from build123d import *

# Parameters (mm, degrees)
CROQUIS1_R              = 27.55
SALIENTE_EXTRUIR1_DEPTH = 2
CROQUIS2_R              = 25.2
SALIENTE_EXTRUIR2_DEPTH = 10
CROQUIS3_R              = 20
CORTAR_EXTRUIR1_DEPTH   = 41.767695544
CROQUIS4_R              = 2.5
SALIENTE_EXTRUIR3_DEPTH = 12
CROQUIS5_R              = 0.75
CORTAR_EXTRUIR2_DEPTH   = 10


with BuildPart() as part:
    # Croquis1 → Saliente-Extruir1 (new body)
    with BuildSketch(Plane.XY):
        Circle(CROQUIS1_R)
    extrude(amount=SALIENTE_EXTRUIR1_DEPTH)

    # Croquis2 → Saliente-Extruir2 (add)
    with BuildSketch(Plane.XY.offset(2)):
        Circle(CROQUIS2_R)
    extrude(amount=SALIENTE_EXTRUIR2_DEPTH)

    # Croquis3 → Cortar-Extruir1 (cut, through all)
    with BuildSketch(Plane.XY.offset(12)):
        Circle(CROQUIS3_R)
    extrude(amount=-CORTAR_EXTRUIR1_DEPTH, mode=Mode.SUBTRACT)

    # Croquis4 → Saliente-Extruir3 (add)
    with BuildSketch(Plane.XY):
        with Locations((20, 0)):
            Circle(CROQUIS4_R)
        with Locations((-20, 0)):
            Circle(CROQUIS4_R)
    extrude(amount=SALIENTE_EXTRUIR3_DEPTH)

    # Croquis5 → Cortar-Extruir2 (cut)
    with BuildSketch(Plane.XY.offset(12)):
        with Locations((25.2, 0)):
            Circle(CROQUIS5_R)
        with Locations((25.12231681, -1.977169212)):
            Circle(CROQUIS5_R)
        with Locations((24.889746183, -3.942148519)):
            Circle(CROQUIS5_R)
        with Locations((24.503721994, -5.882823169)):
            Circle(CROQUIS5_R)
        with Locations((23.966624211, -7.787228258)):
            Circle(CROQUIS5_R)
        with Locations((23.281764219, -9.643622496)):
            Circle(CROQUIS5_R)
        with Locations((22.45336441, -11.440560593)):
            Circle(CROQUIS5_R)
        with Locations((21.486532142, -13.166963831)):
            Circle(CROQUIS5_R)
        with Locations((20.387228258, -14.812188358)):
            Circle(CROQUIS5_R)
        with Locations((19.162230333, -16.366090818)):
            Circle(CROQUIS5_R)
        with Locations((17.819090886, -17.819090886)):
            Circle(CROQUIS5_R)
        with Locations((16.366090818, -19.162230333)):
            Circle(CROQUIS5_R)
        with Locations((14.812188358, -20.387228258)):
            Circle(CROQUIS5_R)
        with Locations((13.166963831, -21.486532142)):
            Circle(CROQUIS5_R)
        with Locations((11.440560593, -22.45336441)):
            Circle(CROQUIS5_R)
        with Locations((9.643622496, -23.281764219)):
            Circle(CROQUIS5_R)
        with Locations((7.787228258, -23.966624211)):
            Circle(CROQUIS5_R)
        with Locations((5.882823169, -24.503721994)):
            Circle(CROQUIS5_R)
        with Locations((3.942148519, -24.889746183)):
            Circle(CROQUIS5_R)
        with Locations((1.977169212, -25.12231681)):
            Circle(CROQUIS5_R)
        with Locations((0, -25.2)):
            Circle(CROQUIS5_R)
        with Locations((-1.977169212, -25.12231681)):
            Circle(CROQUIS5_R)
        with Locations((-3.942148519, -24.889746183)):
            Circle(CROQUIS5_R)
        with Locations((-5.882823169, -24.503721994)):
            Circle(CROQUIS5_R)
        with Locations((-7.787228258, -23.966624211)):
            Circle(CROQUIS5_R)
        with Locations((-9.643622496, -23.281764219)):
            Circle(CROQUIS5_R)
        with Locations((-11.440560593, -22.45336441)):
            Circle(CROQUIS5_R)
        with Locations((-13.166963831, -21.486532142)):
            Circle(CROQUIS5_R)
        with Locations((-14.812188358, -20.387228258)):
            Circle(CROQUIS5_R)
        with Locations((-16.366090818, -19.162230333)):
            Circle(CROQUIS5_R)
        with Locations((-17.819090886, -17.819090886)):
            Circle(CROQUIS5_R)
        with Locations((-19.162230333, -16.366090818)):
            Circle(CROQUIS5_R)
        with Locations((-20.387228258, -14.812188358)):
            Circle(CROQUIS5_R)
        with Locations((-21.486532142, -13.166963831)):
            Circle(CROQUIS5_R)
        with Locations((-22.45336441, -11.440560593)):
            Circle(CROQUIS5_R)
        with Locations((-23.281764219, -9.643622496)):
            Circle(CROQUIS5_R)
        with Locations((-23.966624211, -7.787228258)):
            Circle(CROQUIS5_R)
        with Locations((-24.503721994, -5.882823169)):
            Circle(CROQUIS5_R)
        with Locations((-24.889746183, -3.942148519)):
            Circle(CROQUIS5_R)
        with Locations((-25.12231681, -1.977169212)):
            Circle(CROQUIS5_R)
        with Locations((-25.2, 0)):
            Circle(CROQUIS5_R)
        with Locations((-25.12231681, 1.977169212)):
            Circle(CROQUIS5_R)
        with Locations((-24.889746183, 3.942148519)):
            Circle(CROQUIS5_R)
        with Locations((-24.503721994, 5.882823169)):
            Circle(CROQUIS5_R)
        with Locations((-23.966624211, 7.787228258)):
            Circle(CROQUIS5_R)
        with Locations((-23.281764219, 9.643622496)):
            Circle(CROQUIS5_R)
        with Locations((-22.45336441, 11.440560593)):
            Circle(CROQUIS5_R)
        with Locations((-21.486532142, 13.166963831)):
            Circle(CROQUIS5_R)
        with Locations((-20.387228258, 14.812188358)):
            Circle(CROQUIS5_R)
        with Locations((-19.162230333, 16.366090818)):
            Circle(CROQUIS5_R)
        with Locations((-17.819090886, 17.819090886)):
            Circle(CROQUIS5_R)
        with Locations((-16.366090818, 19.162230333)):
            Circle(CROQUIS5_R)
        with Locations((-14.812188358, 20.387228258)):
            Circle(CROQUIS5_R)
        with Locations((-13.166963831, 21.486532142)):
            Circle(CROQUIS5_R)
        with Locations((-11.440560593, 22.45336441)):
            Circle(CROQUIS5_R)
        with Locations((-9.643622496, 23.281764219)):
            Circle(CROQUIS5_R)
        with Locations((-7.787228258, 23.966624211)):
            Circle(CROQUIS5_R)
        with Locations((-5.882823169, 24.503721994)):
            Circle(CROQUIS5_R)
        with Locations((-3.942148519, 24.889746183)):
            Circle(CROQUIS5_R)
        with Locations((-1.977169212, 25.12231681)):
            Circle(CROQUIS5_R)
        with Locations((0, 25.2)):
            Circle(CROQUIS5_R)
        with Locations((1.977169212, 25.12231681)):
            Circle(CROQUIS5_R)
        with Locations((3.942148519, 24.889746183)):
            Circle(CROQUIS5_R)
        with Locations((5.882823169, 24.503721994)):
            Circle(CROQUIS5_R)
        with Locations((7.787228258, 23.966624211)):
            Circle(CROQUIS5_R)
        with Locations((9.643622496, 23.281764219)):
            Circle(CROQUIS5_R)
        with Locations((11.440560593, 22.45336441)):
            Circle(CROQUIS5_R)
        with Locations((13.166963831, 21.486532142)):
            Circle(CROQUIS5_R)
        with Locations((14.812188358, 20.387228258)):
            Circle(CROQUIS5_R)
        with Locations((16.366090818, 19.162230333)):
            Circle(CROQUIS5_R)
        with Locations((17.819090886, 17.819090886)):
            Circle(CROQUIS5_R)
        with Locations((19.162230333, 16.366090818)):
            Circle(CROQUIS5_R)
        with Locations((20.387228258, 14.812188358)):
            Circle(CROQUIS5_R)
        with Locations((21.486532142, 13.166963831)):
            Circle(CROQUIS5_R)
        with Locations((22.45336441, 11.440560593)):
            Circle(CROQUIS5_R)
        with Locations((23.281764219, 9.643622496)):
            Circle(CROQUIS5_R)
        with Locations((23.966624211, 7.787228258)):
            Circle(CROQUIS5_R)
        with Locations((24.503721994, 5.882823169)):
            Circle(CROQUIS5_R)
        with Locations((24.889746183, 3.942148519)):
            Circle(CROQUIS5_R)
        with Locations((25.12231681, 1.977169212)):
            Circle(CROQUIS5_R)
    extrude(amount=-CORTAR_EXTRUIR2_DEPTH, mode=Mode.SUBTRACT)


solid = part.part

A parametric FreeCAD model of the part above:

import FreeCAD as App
import Part
import Sketcher
from FreeCAD import Vector
Q = App.Units.Quantity

doc = App.newDocument("Part")
body = doc.addObject("PartDesign::Body", "Body")

# Sketch on XY plane
sketch1 = doc.addObject("Sketcher::SketchObject", "Sketch")
body.addObject(sketch1)
sketch1.AttachmentSupport = (doc.XY_Plane, [""])
sketch1.MapMode = "FlatFace"
sketch1.addGeometry(Part.Circle(Vector(0, 0, 0), Vector(0, 0, 1), 28), False)
sketch1.addConstraint(Sketcher.Constraint("Coincident", 0, 3, -1, 1))
sketch1.addConstraint(Sketcher.Constraint("Diameter", 0, Q("55.1 mm")))
pad1 = doc.addObject("PartDesign::Pad", "Pad")
body.addObject(pad1)
pad1.Profile = sketch1
pad1.Length = 2

# Sketch on XY plane
sketch2 = doc.addObject("Sketcher::SketchObject", "Sketch001")
body.addObject(sketch2)
sketch2.AttachmentSupport = (doc.XY_Plane, [""])
sketch2.MapMode = "FlatFace"
sketch2.AttachmentOffset = App.Placement(Vector(0, 0, 2), App.Rotation())
sketch2.addGeometry(Part.Circle(Vector(0, 0, 0), Vector(0, 0, 1), 25), False)
sketch2.addConstraint(Sketcher.Constraint("Coincident", 0, 3, -1, 1))
sketch2.addConstraint(Sketcher.Constraint("Diameter", 0, Q("50.4 mm")))
pad2 = doc.addObject("PartDesign::Pad", "Pad001")
body.addObject(pad2)
pad2.Profile = sketch2
pad2.Length = 10

# Sketch on XY plane
sketch3 = doc.addObject("Sketcher::SketchObject", "Sketch002")
body.addObject(sketch3)
sketch3.AttachmentSupport = (doc.XY_Plane, [""])
sketch3.MapMode = "FlatFace"
sketch3.AttachmentOffset = App.Placement(Vector(0, 0, 12), App.Rotation())
sketch3.addGeometry(Part.Circle(Vector(0, 0, 0), Vector(0, 0, 1), 20), False)
sketch3.addConstraint(Sketcher.Constraint("Coincident", 0, 3, -1, 1))
sketch3.addConstraint(Sketcher.Constraint("Diameter", 0, Q("40 mm")))
pocket1 = doc.addObject("PartDesign::Pocket", "Pocket")
body.addObject(pocket1)
pocket1.Profile = sketch3
pocket1.Type = "ThroughAll"

# Sketch on XY plane
sketch4 = doc.addObject("Sketcher::SketchObject", "Sketch003")
body.addObject(sketch4)
sketch4.AttachmentSupport = (doc.XY_Plane, [""])
sketch4.MapMode = "FlatFace"
sketch4.addGeometry(Part.Circle(Vector(20, 0, 0), Vector(0, 0, 1), 2.5), False)
sketch4.addGeometry(Part.Circle(Vector(-20, 0, 0), Vector(0, 0, 1), 2.5), False)
sketch4.addConstraint(Sketcher.Constraint("Equal", 0, 1))
sketch4.addConstraint(Sketcher.Constraint("Symmetric", 0, 3, 1, 3, -1, 1))
sketch4.addConstraint(Sketcher.Constraint("PointOnObject", 0, 3, -1))
sketch4.addConstraint(Sketcher.Constraint("Diameter", 0, Q("5 mm")))
sketch4.addConstraint(Sketcher.Constraint("DistanceX", -1, 1, 0, 3, Q("20 mm")))
pad3 = doc.addObject("PartDesign::Pad", "Pad002")
body.addObject(pad3)
pad3.Profile = sketch4
pad3.Length = 12

# Sketch on XY plane
sketch5 = doc.addObject("Sketcher::SketchObject", "Sketch004")
body.addObject(sketch5)
sketch5.AttachmentSupport = (doc.XY_Plane, [""])
sketch5.MapMode = "FlatFace"
sketch5.AttachmentOffset = App.Placement(Vector(0, 0, 12), App.Rotation())
sketch5.addGeometry(Part.Circle(Vector(25.2, 0, 0), Vector(0, 0, 1), 0.8), False)
sketch5.addGeometry(Part.Circle(Vector(25.1, -2, 0), Vector(0, 0, 1), 0.8), False)
sketch5.addGeometry(Part.Circle(Vector(24.9, -3.9, 0), Vector(0, 0, 1), 0.8), False)
sketch5.addGeometry(Part.Circle(Vector(24.5, -5.9, 0), Vector(0, 0, 1), 0.8), False)
sketch5.addGeometry(Part.Circle(Vector(24, -7.8, 0), Vector(0, 0, 1), 0.8), False)
sketch5.addGeometry(Part.Circle(Vector(23.3, -9.6, 0), Vector(0, 0, 1), 0.8), False)
sketch5.addGeometry(Part.Circle(Vector(22.5, -11.4, 0), Vector(0, 0, 1), 0.8), False)
sketch5.addGeometry(Part.Circle(Vector(21.5, -13.2, 0), Vector(0, 0, 1), 0.8), False)
sketch5.addGeometry(Part.Circle(Vector(20.4, -14.8, 0), Vector(0, 0, 1), 0.8), False)
sketch5.addGeometry(Part.Circle(Vector(19.2, -16.4, 0), Vector(0, 0, 1), 0.8), False)
sketch5.addGeometry(Part.Circle(Vector(17.8, -17.8, 0), Vector(0, 0, 1), 0.8), False)
sketch5.addGeometry(Part.Circle(Vector(16.4, -19.2, 0), Vector(0, 0, 1), 0.8), False)
sketch5.addGeometry(Part.Circle(Vector(14.8, -20.4, 0), Vector(0, 0, 1), 0.8), False)
sketch5.addGeometry(Part.Circle(Vector(13.2, -21.5, 0), Vector(0, 0, 1), 0.8), False)
sketch5.addGeometry(Part.Circle(Vector(11.4, -22.5, 0), Vector(0, 0, 1), 0.8), False)
sketch5.addGeometry(Part.Circle(Vector(9.6, -23.3, 0), Vector(0, 0, 1), 0.8), False)
sketch5.addGeometry(Part.Circle(Vector(7.8, -24, 0), Vector(0, 0, 1), 0.8), False)
sketch5.addGeometry(Part.Circle(Vector(5.9, -24.5, 0), Vector(0, 0, 1), 0.8), False)
sketch5.addGeometry(Part.Circle(Vector(3.9, -24.9, 0), Vector(0, 0, 1), 0.8), False)
sketch5.addGeometry(Part.Circle(Vector(2, -25.1, 0), Vector(0, 0, 1), 0.8), False)
sketch5.addGeometry(Part.Circle(Vector(0, -25.2, 0), Vector(0, 0, 1), 0.8), False)
sketch5.addGeometry(Part.Circle(Vector(-2, -25.1, 0), Vector(0, 0, 1), 0.8), False)
sketch5.addGeometry(Part.Circle(Vector(-3.9, -24.9, 0), Vector(0, 0, 1), 0.8), False)
sketch5.addGeometry(Part.Circle(Vector(-5.9, -24.5, 0), Vector(0, 0, 1), 0.8), False)
sketch5.addGeometry(Part.Circle(Vector(-7.8, -24, 0), Vector(0, 0, 1), 0.8), False)
sketch5.addGeometry(Part.Circle(Vector(-9.6, -23.3, 0), Vector(0, 0, 1), 0.8), False)
sketch5.addGeometry(Part.Circle(Vector(-11.4, -22.5, 0), Vector(0, 0, 1), 0.8), False)
sketch5.addGeometry(Part.Circle(Vector(-13.2, -21.5, 0), Vector(0, 0, 1), 0.8), False)
sketch5.addGeometry(Part.Circle(Vector(-14.8, -20.4, 0), Vector(0, 0, 1), 0.8), False)
sketch5.addGeometry(Part.Circle(Vector(-16.4, -19.2, 0), Vector(0, 0, 1), 0.8), False)
sketch5.addGeometry(Part.Circle(Vector(-17.8, -17.8, 0), Vector(0, 0, 1), 0.8), False)
sketch5.addGeometry(Part.Circle(Vector(-19.2, -16.4, 0), Vector(0, 0, 1), 0.8), False)
sketch5.addGeometry(Part.Circle(Vector(-20.4, -14.8, 0), Vector(0, 0, 1), 0.8), False)
sketch5.addGeometry(Part.Circle(Vector(-21.5, -13.2, 0), Vector(0, 0, 1), 0.8), False)
sketch5.addGeometry(Part.Circle(Vector(-22.5, -11.4, 0), Vector(0, 0, 1), 0.8), False)
sketch5.addGeometry(Part.Circle(Vector(-23.3, -9.6, 0), Vector(0, 0, 1), 0.8), False)
sketch5.addGeometry(Part.Circle(Vector(-24, -7.8, 0), Vector(0, 0, 1), 0.8), False)
sketch5.addGeometry(Part.Circle(Vector(-24.5, -5.9, 0), Vector(0, 0, 1), 0.8), False)
sketch5.addGeometry(Part.Circle(Vector(-24.9, -3.9, 0), Vector(0, 0, 1), 0.8), False)
sketch5.addGeometry(Part.Circle(Vector(-25.1, -2, 0), Vector(0, 0, 1), 0.8), False)
sketch5.addGeometry(Part.Circle(Vector(-25.2, 0, 0), Vector(0, 0, 1), 0.8), False)
sketch5.addGeometry(Part.Circle(Vector(-25.1, 2, 0), Vector(0, 0, 1), 0.8), False)
sketch5.addGeometry(Part.Circle(Vector(-24.9, 3.9, 0), Vector(0, 0, 1), 0.8), False)
sketch5.addGeometry(Part.Circle(Vector(-24.5, 5.9, 0), Vector(0, 0, 1), 0.8), False)
sketch5.addGeometry(Part.Circle(Vector(-24, 7.8, 0), Vector(0, 0, 1), 0.8), False)
sketch5.addGeometry(Part.Circle(Vector(-23.3, 9.6, 0), Vector(0, 0, 1), 0.8), False)
sketch5.addGeometry(Part.Circle(Vector(-22.5, 11.4, 0), Vector(0, 0, 1), 0.8), False)
sketch5.addGeometry(Part.Circle(Vector(-21.5, 13.2, 0), Vector(0, 0, 1), 0.8), False)
sketch5.addGeometry(Part.Circle(Vector(-20.4, 14.8, 0), Vector(0, 0, 1), 0.8), False)
sketch5.addGeometry(Part.Circle(Vector(-19.2, 16.4, 0), Vector(0, 0, 1), 0.8), False)
sketch5.addGeometry(Part.Circle(Vector(-17.8, 17.8, 0), Vector(0, 0, 1), 0.8), False)
sketch5.addGeometry(Part.Circle(Vector(-16.4, 19.2, 0), Vector(0, 0, 1), 0.8), False)
sketch5.addGeometry(Part.Circle(Vector(-14.8, 20.4, 0), Vector(0, 0, 1), 0.8), False)
sketch5.addGeometry(Part.Circle(Vector(-13.2, 21.5, 0), Vector(0, 0, 1), 0.8), False)
sketch5.addGeometry(Part.Circle(Vector(-11.4, 22.5, 0), Vector(0, 0, 1), 0.8), False)
sketch5.addGeometry(Part.Circle(Vector(-9.6, 23.3, 0), Vector(0, 0, 1), 0.8), False)
sketch5.addGeometry(Part.Circle(Vector(-7.8, 24, 0), Vector(0, 0, 1), 0.8), False)
sketch5.addGeometry(Part.Circle(Vector(-5.9, 24.5, 0), Vector(0, 0, 1), 0.8), False)
sketch5.addGeometry(Part.Circle(Vector(-3.9, 24.9, 0), Vector(0, 0, 1), 0.8), False)
sketch5.addGeometry(Part.Circle(Vector(-2, 25.1, 0), Vector(0, 0, 1), 0.8), False)
sketch5.addGeometry(Part.Circle(Vector(0, 25.2, 0), Vector(0, 0, 1), 0.8), False)
sketch5.addGeometry(Part.Circle(Vector(2, 25.1, 0), Vector(0, 0, 1), 0.8), False)
sketch5.addGeometry(Part.Circle(Vector(3.9, 24.9, 0), Vector(0, 0, 1), 0.8), False)
sketch5.addGeometry(Part.Circle(Vector(5.9, 24.5, 0), Vector(0, 0, 1), 0.8), False)
sketch5.addGeometry(Part.Circle(Vector(7.8, 24, 0), Vector(0, 0, 1), 0.8), False)
sketch5.addGeometry(Part.Circle(Vector(9.6, 23.3, 0), Vector(0, 0, 1), 0.8), False)
sketch5.addGeometry(Part.Circle(Vector(11.4, 22.5, 0), Vector(0, 0, 1), 0.8), False)
sketch5.addGeometry(Part.Circle(Vector(13.2, 21.5, 0), Vector(0, 0, 1), 0.8), False)
sketch5.addGeometry(Part.Circle(Vector(14.8, 20.4, 0), Vector(0, 0, 1), 0.8), False)
sketch5.addGeometry(Part.Circle(Vector(16.4, 19.2, 0), Vector(0, 0, 1), 0.8), False)
sketch5.addGeometry(Part.Circle(Vector(17.8, 17.8, 0), Vector(0, 0, 1), 0.8), False)
sketch5.addGeometry(Part.Circle(Vector(19.2, 16.4, 0), Vector(0, 0, 1), 0.8), False)
sketch5.addGeometry(Part.Circle(Vector(20.4, 14.8, 0), Vector(0, 0, 1), 0.8), False)
sketch5.addGeometry(Part.Circle(Vector(21.5, 13.2, 0), Vector(0, 0, 1), 0.8), False)
sketch5.addGeometry(Part.Circle(Vector(22.5, 11.4, 0), Vector(0, 0, 1), 0.8), False)
sketch5.addGeometry(Part.Circle(Vector(23.3, 9.6, 0), Vector(0, 0, 1), 0.8), False)
sketch5.addGeometry(Part.Circle(Vector(24, 7.8, 0), Vector(0, 0, 1), 0.8), False)
sketch5.addGeometry(Part.Circle(Vector(24.5, 5.9, 0), Vector(0, 0, 1), 0.8), False)
sketch5.addGeometry(Part.Circle(Vector(24.9, 3.9, 0), Vector(0, 0, 1), 0.8), False)
sketch5.addGeometry(Part.Circle(Vector(25.1, 2, 0), Vector(0, 0, 1), 0.8), False)
sketch5.addConstraint(Sketcher.Constraint("Equal", 0, 1))
sketch5.addConstraint(Sketcher.Constraint("Equal", 1, 2))
sketch5.addConstraint(Sketcher.Constraint("Equal", 2, 3))
sketch5.addConstraint(Sketcher.Constraint("Equal", 3, 4))
sketch5.addConstraint(Sketcher.Constraint("Equal", 4, 5))
sketch5.addConstraint(Sketcher.Constraint("Equal", 5, 6))
sketch5.addConstraint(Sketcher.Constraint("Equal", 6, 7))
sketch5.addConstraint(Sketcher.Constraint("Equal", 7, 8))
sketch5.addConstraint(Sketcher.Constraint("Equal", 8, 9))
sketch5.addConstraint(Sketcher.Constraint("Equal", 9, 10))
sketch5.addConstraint(Sketcher.Constraint("Equal", 10, 11))
sketch5.addConstraint(Sketcher.Constraint("Equal", 11, 12))
sketch5.addConstraint(Sketcher.Constraint("Equal", 12, 13))
sketch5.addConstraint(Sketcher.Constraint("Equal", 13, 14))
sketch5.addConstraint(Sketcher.Constraint("Equal", 14, 15))
sketch5.addConstraint(Sketcher.Constraint("Equal", 15, 16))
sketch5.addConstraint(Sketcher.Constraint("Equal", 16, 17))
sketch5.addConstraint(Sketcher.Constraint("Equal", 17, 18))
sketch5.addConstraint(Sketcher.Constraint("Equal", 18, 19))
sketch5.addConstraint(Sketcher.Constraint("Equal", 19, 20))
sketch5.addConstraint(Sketcher.Constraint("Equal", 20, 21))
sketch5.addConstraint(Sketcher.Constraint("Equal", 21, 22))
sketch5.addConstraint(Sketcher.Constraint("Equal", 22, 23))
sketch5.addConstraint(Sketcher.Constraint("Equal", 23, 24))
sketch5.addConstraint(Sketcher.Constraint("Equal", 24, 25))
sketch5.addConstraint(Sketcher.Constraint("Equal", 25, 26))
sketch5.addConstraint(Sketcher.Constraint("Equal", 26, 27))
sketch5.addConstraint(Sketcher.Constraint("Equal", 27, 28))
sketch5.addConstraint(Sketcher.Constraint("Equal", 28, 29))
sketch5.addConstraint(Sketcher.Constraint("Equal", 29, 30))
sketch5.addConstraint(Sketcher.Constraint("Equal", 30, 31))
sketch5.addConstraint(Sketcher.Constraint("Equal", 31, 32))
sketch5.addConstraint(Sketcher.Constraint("Equal", 32, 33))
sketch5.addConstraint(Sketcher.Constraint("Equal", 33, 34))
sketch5.addConstraint(Sketcher.Constraint("Equal", 34, 35))
sketch5.addConstraint(Sketcher.Constraint("Equal", 35, 36))
sketch5.addConstraint(Sketcher.Constraint("Equal", 36, 37))
sketch5.addConstraint(Sketcher.Constraint("Equal", 37, 38))
sketch5.addConstraint(Sketcher.Constraint("Equal", 38, 39))
sketch5.addConstraint(Sketcher.Constraint("Equal", 39, 40))
sketch5.addConstraint(Sketcher.Constraint("Equal", 40, 41))
sketch5.addConstraint(Sketcher.Constraint("Equal", 41, 42))
sketch5.addConstraint(Sketcher.Constraint("Equal", 42, 43))
sketch5.addConstraint(Sketcher.Constraint("Equal", 43, 44))
sketch5.addConstraint(Sketcher.Constraint("Equal", 44, 45))
sketch5.addConstraint(Sketcher.Constraint("Equal", 45, 46))
sketch5.addConstraint(Sketcher.Constraint("Equal", 46, 47))
sketch5.addConstraint(Sketcher.Constraint("Equal", 47, 48))
sketch5.addConstraint(Sketcher.Constraint("Equal", 48, 49))
sketch5.addConstraint(Sketcher.Constraint("Equal", 49, 50))
sketch5.addConstraint(Sketcher.Constraint("Equal", 50, 51))
sketch5.addConstraint(Sketcher.Constraint("Equal", 51, 52))
sketch5.addConstraint(Sketcher.Constraint("Equal", 52, 53))
sketch5.addConstraint(Sketcher.Constraint("Equal", 53, 54))
sketch5.addConstraint(Sketcher.Constraint("Equal", 54, 55))
sketch5.addConstraint(Sketcher.Constraint("Equal", 55, 56))
sketch5.addConstraint(Sketcher.Constraint("Equal", 56, 57))
sketch5.addConstraint(Sketcher.Constraint("Equal", 57, 58))
sketch5.addConstraint(Sketcher.Constraint("Equal", 58, 59))
sketch5.addConstraint(Sketcher.Constraint("Equal", 59, 60))
sketch5.addConstraint(Sketcher.Constraint("Equal", 60, 61))
sketch5.addConstraint(Sketcher.Constraint("Equal", 61, 62))
sketch5.addConstraint(Sketcher.Constraint("Equal", 62, 63))
sketch5.addConstraint(Sketcher.Constraint("Equal", 63, 64))
sketch5.addConstraint(Sketcher.Constraint("Equal", 64, 65))
sketch5.addConstraint(Sketcher.Constraint("Equal", 65, 66))
sketch5.addConstraint(Sketcher.Constraint("Equal", 66, 67))
sketch5.addConstraint(Sketcher.Constraint("Equal", 67, 68))
sketch5.addConstraint(Sketcher.Constraint("Equal", 68, 69))
sketch5.addConstraint(Sketcher.Constraint("Equal", 69, 70))
sketch5.addConstraint(Sketcher.Constraint("Equal", 70, 71))
sketch5.addConstraint(Sketcher.Constraint("Equal", 71, 72))
sketch5.addConstraint(Sketcher.Constraint("Equal", 72, 73))
sketch5.addConstraint(Sketcher.Constraint("Equal", 73, 74))
sketch5.addConstraint(Sketcher.Constraint("Equal", 74, 75))
sketch5.addConstraint(Sketcher.Constraint("Equal", 75, 76))
sketch5.addConstraint(Sketcher.Constraint("Equal", 76, 77))
sketch5.addConstraint(Sketcher.Constraint("Equal", 77, 78))
sketch5.addConstraint(Sketcher.Constraint("Equal", 78, 79))
sketch5.addConstraint(Sketcher.Constraint("Symmetric", 0, 3, 40, 3, -1, 1))
sketch5.addConstraint(Sketcher.Constraint("Symmetric", 1, 3, 41, 3, -1, 1))
sketch5.addConstraint(Sketcher.Constraint("Symmetric", 2, 3, 42, 3, -1, 1))
sketch5.addConstraint(Sketcher.Constraint("Symmetric", 3, 3, 43, 3, -1, 1))
sketch5.addConstraint(Sketcher.Constraint("Symmetric", 4, 3, 44, 3, -1, 1))
sketch5.addConstraint(Sketcher.Constraint("Symmetric", 5, 3, 45, 3, -1, 1))
sketch5.addConstraint(Sketcher.Constraint("Symmetric", 6, 3, 46, 3, -1, 1))
sketch5.addConstraint(Sketcher.Constraint("Symmetric", 7, 3, 47, 3, -1, 1))
sketch5.addConstraint(Sketcher.Constraint("Symmetric", 8, 3, 48, 3, -1, 1))
sketch5.addConstraint(Sketcher.Constraint("Symmetric", 9, 3, 49, 3, -1, 1))
sketch5.addConstraint(Sketcher.Constraint("Symmetric", 10, 3, 50, 3, -1, 1))
sketch5.addConstraint(Sketcher.Constraint("Symmetric", 11, 3, 51, 3, -1, 1))
sketch5.addConstraint(Sketcher.Constraint("Symmetric", 12, 3, 52, 3, -1, 1))
sketch5.addConstraint(Sketcher.Constraint("Symmetric", 13, 3, 53, 3, -1, 1))
sketch5.addConstraint(Sketcher.Constraint("Symmetric", 14, 3, 54, 3, -1, 1))
sketch5.addConstraint(Sketcher.Constraint("Symmetric", 15, 3, 55, 3, -1, 1))
sketch5.addConstraint(Sketcher.Constraint("Symmetric", 16, 3, 56, 3, -1, 1))
sketch5.addConstraint(Sketcher.Constraint("Symmetric", 17, 3, 57, 3, -1, 1))
sketch5.addConstraint(Sketcher.Constraint("Symmetric", 18, 3, 58, 3, -1, 1))
sketch5.addConstraint(Sketcher.Constraint("Symmetric", 19, 3, 59, 3, -1, 1))
sketch5.addConstraint(Sketcher.Constraint("Symmetric", 20, 3, 60, 3, -1, 1))
sketch5.addConstraint(Sketcher.Constraint("Symmetric", 21, 3, 61, 3, -1, 1))
sketch5.addConstraint(Sketcher.Constraint("Symmetric", 22, 3, 62, 3, -1, 1))
sketch5.addConstraint(Sketcher.Constraint("Symmetric", 23, 3, 63, 3, -1, 1))
sketch5.addConstraint(Sketcher.Constraint("Symmetric", 24, 3, 64, 3, -1, 1))
sketch5.addConstraint(Sketcher.Constraint("Symmetric", 25, 3, 65, 3, -1, 1))
sketch5.addConstraint(Sketcher.Constraint("Symmetric", 26, 3, 66, 3, -1, 1))
sketch5.addConstraint(Sketcher.Constraint("Symmetric", 27, 3, 67, 3, -1, 1))
sketch5.addConstraint(Sketcher.Constraint("Symmetric", 28, 3, 68, 3, -1, 1))
sketch5.addConstraint(Sketcher.Constraint("Symmetric", 29, 3, 69, 3, -1, 1))
sketch5.addConstraint(Sketcher.Constraint("Symmetric", 30, 3, 70, 3, -1, 1))
sketch5.addConstraint(Sketcher.Constraint("Symmetric", 31, 3, 71, 3, -1, 1))
sketch5.addConstraint(Sketcher.Constraint("Symmetric", 32, 3, 72, 3, -1, 1))
sketch5.addConstraint(Sketcher.Constraint("Symmetric", 33, 3, 73, 3, -1, 1))
sketch5.addConstraint(Sketcher.Constraint("Symmetric", 34, 3, 74, 3, -1, 1))
sketch5.addConstraint(Sketcher.Constraint("Symmetric", 35, 3, 75, 3, -1, 1))
sketch5.addConstraint(Sketcher.Constraint("Symmetric", 36, 3, 76, 3, -1, 1))
sketch5.addConstraint(Sketcher.Constraint("Symmetric", 37, 3, 77, 3, -1, 1))
sketch5.addConstraint(Sketcher.Constraint("Symmetric", 38, 3, 78, 3, -1, 1))
sketch5.addConstraint(Sketcher.Constraint("Symmetric", 39, 3, 79, 3, -1, 1))
sketch5.addConstraint(Sketcher.Constraint("Symmetric", 19, 3, 21, 3, -2))
sketch5.addConstraint(Sketcher.Constraint("Symmetric", 18, 3, 22, 3, -2))
sketch5.addConstraint(Sketcher.Constraint("Symmetric", 17, 3, 23, 3, -2))
sketch5.addConstraint(Sketcher.Constraint("Symmetric", 16, 3, 24, 3, -2))
sketch5.addConstraint(Sketcher.Constraint("Symmetric", 15, 3, 25, 3, -2))
sketch5.addConstraint(Sketcher.Constraint("Symmetric", 14, 3, 26, 3, -2))
sketch5.addConstraint(Sketcher.Constraint("Symmetric", 13, 3, 27, 3, -2))
sketch5.addConstraint(Sketcher.Constraint("Symmetric", 12, 3, 28, 3, -2))
sketch5.addConstraint(Sketcher.Constraint("Symmetric", 11, 3, 29, 3, -2))
sketch5.addConstraint(Sketcher.Constraint("Symmetric", 10, 3, 30, 3, -2))
sketch5.addConstraint(Sketcher.Constraint("Symmetric", 9, 3, 31, 3, -2))
sketch5.addConstraint(Sketcher.Constraint("Symmetric", 8, 3, 32, 3, -2))
sketch5.addConstraint(Sketcher.Constraint("Symmetric", 7, 3, 33, 3, -2))
sketch5.addConstraint(Sketcher.Constraint("Symmetric", 6, 3, 34, 3, -2))
sketch5.addConstraint(Sketcher.Constraint("Symmetric", 5, 3, 35, 3, -2))
sketch5.addConstraint(Sketcher.Constraint("Symmetric", 4, 3, 36, 3, -2))
sketch5.addConstraint(Sketcher.Constraint("Symmetric", 3, 3, 37, 3, -2))
sketch5.addConstraint(Sketcher.Constraint("Symmetric", 2, 3, 38, 3, -2))
sketch5.addConstraint(Sketcher.Constraint("Symmetric", 1, 3, 39, 3, -2))
sketch5.addConstraint(Sketcher.Constraint("PointOnObject", 0, 3, -1))
sketch5.addConstraint(Sketcher.Constraint("PointOnObject", 20, 3, -2))
sketch5.addConstraint(Sketcher.Constraint("Diameter", 0, Q("1.5 mm")))
sketch5.addConstraint(Sketcher.Constraint("DistanceX", -1, 1, 0, 3, Q("25.2 mm")))
sketch5.addConstraint(Sketcher.Constraint("DistanceY", 20, 3, -1, 1, Q("25.2 mm")))
sketch5.addConstraint(Sketcher.Constraint("DistanceY", 1, 3, -1, 1, Q("1.977169 mm")))
sketch5.addConstraint(Sketcher.Constraint("DistanceY", 2, 3, -1, 1, Q("3.942149 mm")))
sketch5.addConstraint(Sketcher.Constraint("DistanceX", -1, 1, 3, 3, Q("24.503722 mm")))
sketch5.addConstraint(Sketcher.Constraint("DistanceY", 4, 3, -1, 1, Q("7.787228 mm")))
sketch5.addConstraint(Sketcher.Constraint("DistanceY", 6, 3, -1, 1, Q("11.440561 mm")))
sketch5.addConstraint(Sketcher.Constraint("DistanceX", -1, 1, 8, 3, Q("20.387228 mm")))
sketch5.addConstraint(Sketcher.Constraint("DistanceY", 8, 3, -1, 1, Q("14.812188 mm")))
sketch5.addConstraint(Sketcher.Constraint("DistanceX", -1, 1, 9, 3, Q("19.16223 mm")))
sketch5.addConstraint(Sketcher.Constraint("DistanceY", 9, 3, -1, 1, Q("16.366091 mm")))
sketch5.addConstraint(Sketcher.Constraint("DistanceX", -1, 1, 10, 3, Q("17.819091 mm")))
sketch5.addConstraint(Sketcher.Constraint("DistanceY", 10, 3, -1, 1, Q("17.819091 mm")))
sketch5.addConstraint(Sketcher.Constraint("DistanceX", -1, 1, 11, 3, Q("16.366091 mm")))
sketch5.addConstraint(Sketcher.Constraint("DistanceY", 11, 3, -1, 1, Q("19.16223 mm")))
sketch5.addConstraint(Sketcher.Constraint("DistanceX", -1, 1, 12, 3, Q("14.812188 mm")))
sketch5.addConstraint(Sketcher.Constraint("DistanceY", 12, 3, -1, 1, Q("20.387228 mm")))
sketch5.addConstraint(Sketcher.Constraint("DistanceX", -1, 1, 14, 3, Q("11.440561 mm")))
sketch5.addConstraint(Sketcher.Constraint("DistanceX", -1, 1, 16, 3, Q("7.787228 mm")))
sketch5.addConstraint(Sketcher.Constraint("DistanceY", 17, 3, -1, 1, Q("24.503722 mm")))
sketch5.addConstraint(Sketcher.Constraint("DistanceX", -1, 1, 18, 3, Q("3.942149 mm")))
sketch5.addConstraint(Sketcher.Constraint("DistanceX", -1, 1, 19, 3, Q("1.977169 mm")))
sketch5.addConstraint(Sketcher.Constraint("DistanceX", -1, 1, 1, 3, Q("25.122317 mm")))
sketch5.addConstraint(Sketcher.Constraint("DistanceX", -1, 1, 2, 3, Q("24.889746 mm")))
sketch5.addConstraint(Sketcher.Constraint("DistanceY", 3, 3, -1, 1, Q("5.882823 mm")))
sketch5.addConstraint(Sketcher.Constraint("DistanceX", -1, 1, 4, 3, Q("23.966624 mm")))
sketch5.addConstraint(Sketcher.Constraint("DistanceX", -1, 1, 5, 3, Q("23.281764 mm")))
sketch5.addConstraint(Sketcher.Constraint("DistanceY", 5, 3, -1, 1, Q("9.643622 mm")))
sketch5.addConstraint(Sketcher.Constraint("DistanceX", -1, 1, 6, 3, Q("22.453364 mm")))
sketch5.addConstraint(Sketcher.Constraint("DistanceX", -1, 1, 7, 3, Q("21.486532 mm")))
sketch5.addConstraint(Sketcher.Constraint("DistanceY", 7, 3, -1, 1, Q("13.166964 mm")))
sketch5.addConstraint(Sketcher.Constraint("DistanceX", -1, 1, 13, 3, Q("13.166964 mm")))
sketch5.addConstraint(Sketcher.Constraint("DistanceY", 13, 3, -1, 1, Q("21.486532 mm")))
sketch5.addConstraint(Sketcher.Constraint("DistanceY", 14, 3, -1, 1, Q("22.453364 mm")))
sketch5.addConstraint(Sketcher.Constraint("DistanceX", -1, 1, 15, 3, Q("9.643622 mm")))
sketch5.addConstraint(Sketcher.Constraint("DistanceY", 15, 3, -1, 1, Q("23.281764 mm")))
sketch5.addConstraint(Sketcher.Constraint("DistanceY", 16, 3, -1, 1, Q("23.966624 mm")))
sketch5.addConstraint(Sketcher.Constraint("DistanceX", -1, 1, 17, 3, Q("5.882823 mm")))
sketch5.addConstraint(Sketcher.Constraint("DistanceY", 18, 3, -1, 1, Q("24.889746 mm")))
sketch5.addConstraint(Sketcher.Constraint("DistanceY", 19, 3, -1, 1, Q("25.122317 mm")))
pocket2 = doc.addObject("PartDesign::Pocket", "Pocket001")
body.addObject(pocket2)
pocket2.Profile = sketch5
pocket2.Length = 10

doc.recompute()
